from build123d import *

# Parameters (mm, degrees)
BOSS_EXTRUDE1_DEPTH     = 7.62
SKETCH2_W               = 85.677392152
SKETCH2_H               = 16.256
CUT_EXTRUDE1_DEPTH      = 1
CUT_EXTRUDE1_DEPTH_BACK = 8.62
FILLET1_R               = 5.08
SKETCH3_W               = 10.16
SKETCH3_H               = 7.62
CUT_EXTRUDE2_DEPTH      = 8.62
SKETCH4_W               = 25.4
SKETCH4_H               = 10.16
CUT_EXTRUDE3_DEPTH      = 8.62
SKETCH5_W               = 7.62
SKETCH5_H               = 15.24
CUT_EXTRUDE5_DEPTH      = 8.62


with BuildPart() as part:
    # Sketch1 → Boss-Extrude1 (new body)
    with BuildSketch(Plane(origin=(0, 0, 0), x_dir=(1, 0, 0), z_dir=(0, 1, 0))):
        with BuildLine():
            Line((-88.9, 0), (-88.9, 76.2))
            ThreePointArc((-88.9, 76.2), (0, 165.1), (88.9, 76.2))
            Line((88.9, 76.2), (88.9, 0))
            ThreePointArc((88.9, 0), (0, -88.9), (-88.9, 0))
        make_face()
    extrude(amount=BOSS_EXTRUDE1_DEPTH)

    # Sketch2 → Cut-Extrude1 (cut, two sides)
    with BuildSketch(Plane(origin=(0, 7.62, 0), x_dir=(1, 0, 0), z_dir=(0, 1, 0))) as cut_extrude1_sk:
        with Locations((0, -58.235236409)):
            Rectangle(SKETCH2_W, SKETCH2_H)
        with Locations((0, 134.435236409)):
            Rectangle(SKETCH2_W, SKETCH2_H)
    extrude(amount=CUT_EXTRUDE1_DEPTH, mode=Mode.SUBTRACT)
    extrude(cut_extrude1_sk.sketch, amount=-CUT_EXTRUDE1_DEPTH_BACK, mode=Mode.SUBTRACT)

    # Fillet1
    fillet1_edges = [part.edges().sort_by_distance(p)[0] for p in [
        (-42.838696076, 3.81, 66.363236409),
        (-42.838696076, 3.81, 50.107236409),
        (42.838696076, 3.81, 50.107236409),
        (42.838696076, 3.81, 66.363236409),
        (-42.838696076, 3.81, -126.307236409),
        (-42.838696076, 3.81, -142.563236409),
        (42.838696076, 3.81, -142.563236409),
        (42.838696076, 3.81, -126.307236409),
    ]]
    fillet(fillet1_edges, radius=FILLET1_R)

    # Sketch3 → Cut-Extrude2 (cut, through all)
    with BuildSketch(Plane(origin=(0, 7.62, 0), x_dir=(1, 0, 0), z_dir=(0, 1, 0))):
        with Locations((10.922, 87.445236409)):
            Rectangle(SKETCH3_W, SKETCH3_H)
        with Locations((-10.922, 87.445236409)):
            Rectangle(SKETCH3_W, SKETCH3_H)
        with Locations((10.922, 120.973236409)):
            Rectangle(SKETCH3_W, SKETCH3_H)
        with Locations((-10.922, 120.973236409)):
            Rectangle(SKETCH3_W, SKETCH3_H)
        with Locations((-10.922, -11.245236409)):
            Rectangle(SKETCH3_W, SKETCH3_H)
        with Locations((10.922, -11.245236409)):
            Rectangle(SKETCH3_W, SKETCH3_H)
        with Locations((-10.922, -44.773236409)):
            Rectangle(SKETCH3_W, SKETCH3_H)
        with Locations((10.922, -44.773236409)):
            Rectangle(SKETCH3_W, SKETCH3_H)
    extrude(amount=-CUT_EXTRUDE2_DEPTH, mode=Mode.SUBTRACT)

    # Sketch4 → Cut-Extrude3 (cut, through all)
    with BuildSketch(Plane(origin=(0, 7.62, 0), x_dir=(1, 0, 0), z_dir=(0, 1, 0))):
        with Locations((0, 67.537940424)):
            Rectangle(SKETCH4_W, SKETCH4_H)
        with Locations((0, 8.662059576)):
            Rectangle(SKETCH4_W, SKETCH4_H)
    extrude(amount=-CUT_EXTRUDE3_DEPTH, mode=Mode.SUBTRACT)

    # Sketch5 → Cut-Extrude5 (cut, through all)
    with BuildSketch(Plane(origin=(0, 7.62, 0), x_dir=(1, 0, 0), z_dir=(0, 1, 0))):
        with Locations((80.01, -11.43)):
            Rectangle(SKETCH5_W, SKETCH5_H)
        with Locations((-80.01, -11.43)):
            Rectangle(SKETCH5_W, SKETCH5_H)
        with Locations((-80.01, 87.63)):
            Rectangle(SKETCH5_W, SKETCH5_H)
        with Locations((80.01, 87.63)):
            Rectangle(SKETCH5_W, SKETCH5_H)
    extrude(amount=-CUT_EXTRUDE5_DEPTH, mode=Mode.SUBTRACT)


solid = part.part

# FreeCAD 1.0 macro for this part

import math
import FreeCAD as App
import Part
import Sketcher
from FreeCAD import Vector
Q = App.Units.Quantity


def edges_at(feature, points):
    """Names of the edges that pass closest to the given points."""
    edges = feature.Shape.Edges
    near = lambda p: min(range(len(edges)), key=lambda i: edges[i].distToShape(Part.Vertex(*p))[0])
    return sorted({f"Edge{near(p) + 1}" for p in points})

doc = App.newDocument("Part")
body = doc.addObject("PartDesign::Body", "Body")

sketch1 = body.newObject("Sketcher::SketchObject", "Sketch")
sketch1.AttachmentSupport = (doc.getObject("XZ_Plane"), [""])
sketch1.MapMode = "FlatFace"
sketch1.addGeometry([
    Part.LineSegment(Vector(-89, -76, 0), Vector(-89, 0, 0)),
    Part.ArcOfCircle(Part.Circle(Vector(0, 0, 0), Vector(0, 0, 1), 89), math.radians(0), math.radians(180)),
    Part.LineSegment(Vector(89, 0, 0), Vector(89, -76, 0)),
    Part.ArcOfCircle(Part.Circle(Vector(0, -76, 0), Vector(0, 0, 1), 89), math.radians(180), math.radians(360)),
], False)
sketch1.addConstraint([
    Sketcher.Constraint("Tangent", 0, 2, 1, 2),
    Sketcher.Constraint("Tangent", 1, 1, 2, 1),
    Sketcher.Constraint("Tangent", 2, 2, 3, 2),
    Sketcher.Constraint("Tangent", 3, 1, 0, 1),
    Sketcher.Constraint("Vertical", 0),
    Sketcher.Constraint("Vertical", 2),
    Sketcher.Constraint("Coincident", 1, 3, -1, 1),
    Sketcher.Constraint("Radius", 1, Q("3.5 in")),
    Sketcher.Constraint("DistanceY", 0, 1, 0, 2, Q("3 in")),
])
pad1 = body.newObject("PartDesign::Pad", "Pad")
pad1.Profile = sketch1
pad1.Length = Q("0.3 in")
pad1.Reversed = True

sketch2 = body.newObject("Sketcher::SketchObject", "Sketch001")
sketch2.AttachmentSupport = (doc.getObject("XZ_Plane"), [""])
sketch2.MapMode = "FlatFace"
sketch2.AttachmentOffset = App.Placement(Vector(0, 0, -0.3 * 25.4), App.Rotation())
sketch2.addGeometry([
    Part.LineSegment(Vector(-43, 50, 0), Vector(-43, 66, 0)),
    Part.LineSegment(Vector(-43, 66, 0), Vector(43, 66, 0)),
    Part.LineSegment(Vector(43, 66, 0), Vector(43, 50, 0)),
    Part.LineSegment(Vector(43, 50, 0), Vector(-43, 50, 0)),
    Part.LineSegment(Vector(-43, -143, 0), Vector(-43, -126, 0)),
    Part.LineSegment(Vector(-43, -126, 0), Vector(43, -126, 0)),
    Part.LineSegment(Vector(43, -126, 0), Vector(43, -143, 0)),
    Part.LineSegment(Vector(43, -143, 0), Vector(-43, -143, 0)),
], False)
sketch2.addConstraint([
    Sketcher.Constraint("Coincident", 0, 2, 1, 1),
    Sketcher.Constraint("Coincident", 1, 2, 2, 1),
    Sketcher.Constraint("Coincident", 2, 2, 3, 1),
    Sketcher.Constraint("Coincident", 3, 2, 0, 1),
    Sketcher.Constraint("Coincident", 4, 2, 5, 1),
    Sketcher.Constraint("Coincident", 5, 2, 6, 1),
    Sketcher.Constraint("Coincident", 6, 2, 7, 1),
    Sketcher.Constraint("Coincident", 7, 2, 4, 1),
    Sketcher.Constraint("Vertical", 0),
    Sketcher.Constraint("Horizontal", 1),
    Sketcher.Constraint("Vertical", 2),
    Sketcher.Constraint("Horizontal", 3),
    Sketcher.Constraint("Vertical", 4),
    Sketcher.Constraint("Horizontal", 5),
    Sketcher.Constraint("Vertical", 6),
    Sketcher.Constraint("Horizontal", 7),
    Sketcher.Constraint("Vertical", 3, 2, 4, 2),
    Sketcher.Constraint("Vertical", 2, 2, 5, 2),
    Sketcher.Constraint("Equal", 2, 4),
    Sketcher.Constraint("DistanceY", 0, 1, 0, 2, Q("0.64 in")),
    Sketcher.Constraint("DistanceX", 1, 1, 1, 2, Q("85.677392 mm")),
    Sketcher.Constraint("DistanceX", 0, 2, -1, 1, Q("42.838696 mm")),
    Sketcher.Constraint("DistanceY", -1, 1, 0, 2, Q("66.363236 mm")),
    Sketcher.Constraint("DistanceY", 4, 2, -1, 1, Q("126.307236 mm")),
])
pocket1 = body.newObject("PartDesign::Pocket", "Pocket")
pocket1.Profile = sketch2
pocket1.Type = "ThroughAll"
pocket1.Midplane = True
doc.recompute()

fillet = body.newObject("PartDesign::Fillet", "Fillet")
fillet.Base = (pocket1, edges_at(pocket1, [
    (-42.839, 3.81, 66.363),
    (-42.839, 3.81, 50.107),
    (42.839, 3.81, 50.107),
    (42.839, 3.81, 66.363),
    (-42.839, 3.81, -126.307),
    (-42.839, 3.81, -142.563),
    (42.839, 3.81, -142.563),
    (42.839, 3.81, -126.307),
]))
fillet.Radius = Q("0.2 in")

sketch3 = body.newObject("Sketcher::SketchObject", "Sketch002")
sketch3.AttachmentSupport = (doc.getObject("XZ_Plane"), [""])
sketch3.MapMode = "FlatFace"
sketch3.AttachmentOffset = App.Placement(Vector(0, 0, -0.3 * 25.4), App.Rotation())
sketch3.addGeometry([
    Part.LineSegment(Vector(6, -91, 0), Vector(6, -84, 0)),
    Part.LineSegment(Vector(6, -84, 0), Vector(16, -84, 0)),
    Part.LineSegment(Vector(16, -84, 0), Vector(16, -91, 0)),
    Part.LineSegment(Vector(16, -91, 0), Vector(6, -91, 0)),
    Part.LineSegment(Vector(-16, -91, 0), Vector(-16, -84, 0)),
    Part.LineSegment(Vector(-16, -84, 0), Vector(-6, -84, 0)),
    Part.LineSegment(Vector(-6, -84, 0), Vector(-6, -91, 0)),
    Part.LineSegment(Vector(-6, -91, 0), Vector(-16, -91, 0)),
    Part.LineSegment(Vector(6, -125, 0), Vector(6, -117, 0)),
    Part.LineSegment(Vector(6, -117, 0), Vector(16, -117, 0)),
    Part.LineSegment(Vector(16, -117, 0), Vector(16, -125, 0)),
    Part.LineSegment(Vector(16, -125, 0), Vector(6, -125, 0)),
    Part.LineSegment(Vector(-16, -125, 0), Vector(-16, -117, 0)),
    Part.LineSegment(Vector(-16, -117, 0), Vector(-6, -117, 0)),
    Part.LineSegment(Vector(-6, -117, 0), Vector(-6, -125, 0)),
    Part.LineSegment(Vector(-6, -125, 0), Vector(-16, -125, 0)),
    Part.LineSegment(Vector(-16, 7, 0), Vector(-16, 15, 0)),
    Part.LineSegment(Vector(-16, 15, 0), Vector(-6, 15, 0)),
    Part.LineSegment(Vector(-6, 15, 0), Vector(-6, 7, 0)),
    Part.LineSegment(Vector(-6, 7, 0), Vector(-16, 7, 0)),
    Part.LineSegment(Vector(6, 7, 0), Vector(6, 15, 0)),
    Part.LineSegment(Vector(6, 15, 0), Vector(16, 15, 0)),
    Part.LineSegment(Vector(16, 15, 0), Vector(16, 7, 0)),
    Part.LineSegment(Vector(16, 7, 0), Vector(6, 7, 0)),
    Part.LineSegment(Vector(-16, 41, 0), Vector(-16, 49, 0)),
    Part.LineSegment(Vector(-16, 49, 0), Vector(-6, 49, 0)),
    Part.LineSegment(Vector(-6, 49, 0), Vector(-6, 41, 0)),
    Part.LineSegment(Vector(-6, 41, 0), Vector(-16, 41, 0)),
    Part.LineSegment(Vector(6, 41, 0), Vector(6, 49, 0)),
    Part.LineSegment(Vector(6, 49, 0), Vector(16, 49, 0)),
    Part.LineSegment(Vector(16, 49, 0), Vector(16, 41, 0)),
    Part.LineSegment(Vector(16, 41, 0), Vector(6, 41, 0)),
], False)
sketch3.addConstraint([
    Sketcher.Constraint("Coincident", 0, 2, 1, 1),
    Sketcher.Constraint("Coincident", 1, 2, 2, 1),
    Sketcher.Constraint("Coincident", 2, 2, 3, 1),
    Sketcher.Constraint("Coincident", 3, 2, 0, 1),
    Sketcher.Constraint("Coincident", 4, 2, 5, 1),
    Sketcher.Constraint("Coincident", 5, 2, 6, 1),
    Sketcher.Constraint("Coincident", 6, 2, 7, 1),
    Sketcher.Constraint("Coincident", 7, 2, 4, 1),
    Sketcher.Constraint("Coincident", 8, 2, 9, 1),
    Sketcher.Constraint("Coincident", 9, 2, 10, 1),
    Sketcher.Constraint("Coincident", 10, 2, 11, 1),
    Sketcher.Constraint("Coincident", 11, 2, 8, 1),
    Sketcher.Constraint("Coincident", 12, 2, 13, 1),
    Sketcher.Constraint("Coincident", 13, 2, 14, 1),
    Sketcher.Constraint("Coincident", 14, 2, 15, 1),
    Sketcher.Constraint("Coincident", 15, 2, 12, 1),
    Sketcher.Constraint("Coincident", 16, 2, 17, 1),
    Sketcher.Constraint("Coincident", 17, 2, 18, 1),
    Sketcher.Constraint("Coincident", 18, 2, 19, 1),
    Sketcher.Constraint("Coincident", 19, 2, 16, 1),
    Sketcher.Constraint("Coincident", 20, 2, 21, 1),
    Sketcher.Constraint("Coincident", 21, 2, 22, 1),
    Sketcher.Constraint("Coincident", 22, 2, 23, 1),
    Sketcher.Constraint("Coincident", 23, 2, 20, 1),
    Sketcher.Constraint("Coincident", 24, 2, 25, 1),
    Sketcher.Constraint("Coincident", 25, 2, 26, 1),
    Sketcher.Constraint("Coincident", 26, 2, 27, 1),
    Sketcher.Constraint("Coincident", 27, 2, 24, 1),
    Sketcher.Constraint("Coincident", 28, 2, 29, 1),
    Sketcher.Constraint("Coincident", 29, 2, 30, 1),
    Sketcher.Constraint("Coincident", 30, 2, 31, 1),
    Sketcher.Constraint("Coincident", 31, 2, 28, 1),
    Sketcher.Constraint("Vertical", 0),
    Sketcher.Constraint("Horizontal", 1),
    Sketcher.Constraint("Vertical", 2),
    Sketcher.Constraint("Horizontal", 3),
    Sketcher.Constraint("Vertical", 4),
    Sketcher.Constraint("Horizontal", 5),
    Sketcher.Constraint("Vertical", 6),
    Sketcher.Constraint("Horizontal", 7),
    Sketcher.Constraint("Vertical", 8),
    Sketcher.Constraint("Horizontal", 9),
    Sketcher.Constraint("Vertical", 10),
    Sketcher.Constraint("Horizontal", 11),
    Sketcher.Constraint("Vertical", 12),
    Sketcher.Constraint("Horizontal", 13),
    Sketcher.Constraint("Vertical", 14),
    Sketcher.Constraint("Horizontal", 15),
    Sketcher.Constraint("Vertical", 16),
    Sketcher.Constraint("Horizontal", 17),
    Sketcher.Constraint("Vertical", 18),
    Sketcher.Constraint("Horizontal", 19),
    Sketcher.Constraint("Vertical", 20),
    Sketcher.Constraint("Horizontal", 21),
    Sketcher.Constraint("Vertical", 22),
    Sketcher.Constraint("Horizontal", 23),
    Sketcher.Constraint("Vertical", 24),
    Sketcher.Constraint("Horizontal", 25),
    Sketcher.Constraint("Vertical", 26),
    Sketcher.Constraint("Horizontal", 27),
    Sketcher.Constraint("Vertical", 28),
    Sketcher.Constraint("Horizontal", 29),
    Sketcher.Constraint("Vertical", 30),
    Sketcher.Constraint("Horizontal", 31),
    Sketcher.Constraint("Symmetric", 1, 2, 4, 2, -2),
    Sketcher.Constraint("Symmetric", 3, 2, 6, 2, -2),
    Sketcher.Constraint("Symmetric", 9, 2, 12, 2, -2),
    Sketcher.Constraint("Symmetric", 11, 2, 14, 2, -2),
    Sketcher.Constraint("Symmetric", 17, 2, 20, 2, -2),
    Sketcher.Constraint("Symmetric", 19, 2, 22, 2, -2),
    Sketcher.Constraint("Symmetric", 25, 2, 28, 2, -2),
    Sketcher.Constraint("Symmetric", 27, 2, 30, 2, -2),
    Sketcher.Constraint("Vertical", 3, 2, 8, 2),
    Sketcher.Constraint("Vertical", 2, 2, 9, 2),
    Sketcher.Constraint("Vertical", 15, 2, 16, 2),
    Sketcher.Constraint("Vertical", 14, 2, 17, 2),
    Sketcher.Constraint("Vertical", 19, 2, 24, 2),
    Sketcher.Constraint("Vertical", 18, 2, 25, 2),
    Sketcher.Constraint("Equal", 6, 8),
    Sketcher.Constraint("Equal", 14, 16),
    Sketcher.Constraint("Equal", 22, 24),
    Sketcher.Constraint("DistanceX", 1, 1, 1, 2, Q("0.4 in")),
    Sketcher.Constraint("DistanceY", 0, 1, 0, 2, Q("0.3 in")),
    Sketcher.Constraint("DistanceX", -1, 1, 0, 2, Q("0.23 in")),
    Sketcher.Constraint("DistanceY", 8, 2, 3, 2, Q("1.02 in")),
    Sketcher.Constraint("DistanceY", 16, 2, 24, 2, Q("1.32 in")),
    Sketcher.Constraint("DistanceY", 0, 2, -1, 1, Q("83.635236 mm")),
    Sketcher.Constraint("DistanceY", -1, 1, 16, 2, Q("15.055236 mm")),
])
pocket2 = body.newObject("PartDesign::Pocket", "Pocket001")
pocket2.Profile = sketch3
pocket2.Type = "ThroughAll"
pocket2.Reversed = True

sketch4 = body.newObject("Sketcher::SketchObject", "Sketch003")
sketch4.AttachmentSupport = (doc.getObject("XZ_Plane"), [""])
sketch4.MapMode = "FlatFace"
sketch4.AttachmentOffset = App.Placement(Vector(0, 0, -0.3 * 25.4), App.Rotation())
sketch4.addGeometry([
    Part.LineSegment(Vector(-13, -73, 0), Vector(-13, -62, 0)),
    Part.LineSegment(Vector(-13, -62, 0), Vector(13, -62, 0)),
    Part.LineSegment(Vector(13, -62, 0), Vector(13, -73, 0)),
    Part.LineSegment(Vector(13, -73, 0), Vector(-13, -73, 0)),
    Part.LineSegment(Vector(-13, -14, 0), Vector(-13, -4, 0)),
    Part.LineSegment(Vector(-13, -4, 0), Vector(13, -4, 0)),
    Part.LineSegment(Vector(13, -4, 0), Vector(13, -14, 0)),
    Part.LineSegment(Vector(13, -14, 0), Vector(-13, -14, 0)),
], False)
sketch4.addConstraint([
    Sketcher.Constraint("Coincident", 0, 2, 1, 1),
    Sketcher.Constraint("Coincident", 1, 2, 2, 1),
    Sketcher.Constraint("Coincident", 2, 2, 3, 1),
    Sketcher.Constraint("Coincident", 3, 2, 0, 1),
    Sketcher.Constraint("Coincident", 4, 2, 5, 1),
    Sketcher.Constraint("Coincident", 5, 2, 6, 1),
    Sketcher.Constraint("Coincident", 6, 2, 7, 1),
    Sketcher.Constraint("Coincident", 7, 2, 4, 1),
    Sketcher.Constraint("Vertical", 0),
    Sketcher.Constraint("Horizontal", 1),
    Sketcher.Constraint("Vertical", 2),
    Sketcher.Constraint("Horizontal", 3),
    Sketcher.Constraint("Vertical", 4),
    Sketcher.Constraint("Horizontal", 5),
    Sketcher.Constraint("Vertical", 6),
    Sketcher.Constraint("Horizontal", 7),
    Sketcher.Constraint("Vertical", 3, 2, 4, 2),
    Sketcher.Constraint("Vertical", 2, 2, 5, 2),
    Sketcher.Constraint("Equal", 2, 4),
    Sketcher.Constraint("DistanceX", 1, 1, 1, 2, Q("1 in")),
    Sketcher.Constraint("DistanceY", 0, 1, 0, 2, Q("0.4 in")),
    Sketcher.Constraint("DistanceX", 0, 2, -1, 1, Q("0.5 in")),
    Sketcher.Constraint("DistanceY", 0, 2, -1, 1, Q("62.45794 mm")),
    Sketcher.Constraint("DistanceY", 4, 2, -1, 1, Q("3.58206 mm")),
])
pocket3 = body.newObject("PartDesign::Pocket", "Pocket002")
pocket3.Profile = sketch4
pocket3.Type = "ThroughAll"
pocket3.Reversed = True

sketch5 = body.newObject("Sketcher::SketchObject", "Sketch004")
sketch5.AttachmentSupport = (doc.getObject("XZ_Plane"), [""])
sketch5.MapMode = "FlatFace"
sketch5.AttachmentOffset = App.Placement(Vector(0, 0, -0.3 * 25.4), App.Rotation())
sketch5.addGeometry([
    Part.LineSegment(Vector(76, 4, 0), Vector(76, 19, 0)),
    Part.LineSegment(Vector(76, 19, 0), Vector(84, 19, 0)),
    Part.LineSegment(Vector(84, 19, 0), Vector(84, 4, 0)),
    Part.LineSegment(Vector(84, 4, 0), Vector(76, 4, 0)),
    Part.LineSegment(Vector(-84, 4, 0), Vector(-84, 19, 0)),
    Part.LineSegment(Vector(-84, 19, 0), Vector(-76, 19, 0)),
    Part.LineSegment(Vector(-76, 19, 0), Vector(-76, 4, 0)),
    Part.LineSegment(Vector(-76, 4, 0), Vector(-84, 4, 0)),
    Part.LineSegment(Vector(-84, -95, 0), Vector(-84, -80, 0)),
    Part.LineSegment(Vector(-84, -80, 0), Vector(-76, -80, 0)),
    Part.LineSegment(Vector(-76, -80, 0), Vector(-76, -95, 0)),
    Part.LineSegment(Vector(-76, -95, 0), Vector(-84, -95, 0)),
    Part.LineSegment(Vector(76, -95, 0), Vector(76, -80, 0)),
    Part.LineSegment(Vector(76, -80, 0), Vector(84, -80, 0)),
    Part.LineSegment(Vector(84, -80, 0), Vector(84, -95, 0)),
    Part.LineSegment(Vector(84, -95, 0), Vector(76, -95, 0)),
], False)
sketch5.addConstraint([
    Sketcher.Constraint("Coincident", 0, 2, 1, 1),
    Sketcher.Constraint("Coincident", 1, 2, 2, 1),
    Sketcher.Constraint("Coincident", 2, 2, 3, 1),
    Sketcher.Constraint("Coincident", 3, 2, 0, 1),
    Sketcher.Constraint("Coincident", 4, 2, 5, 1),
    Sketcher.Constraint("Coincident", 5, 2, 6, 1),
    Sketcher.Constraint("Coincident", 6, 2, 7, 1),
    Sketcher.Constraint("Coincident", 7, 2, 4, 1),
    Sketcher.Constraint("Coincident", 8, 2, 9, 1),
    Sketcher.Constraint("Coincident", 9, 2, 10, 1),
    Sketcher.Constraint("Coincident", 10, 2, 11, 1),
    Sketcher.Constraint("Coincident", 11, 2, 8, 1),
    Sketcher.Constraint("Coincident", 12, 2, 13, 1),
    Sketcher.Constraint("Coincident", 13, 2, 14, 1),
    Sketcher.Constraint("Coincident", 14, 2, 15, 1),
    Sketcher.Constraint("Coincident", 15, 2, 12, 1),
    Sketcher.Constraint("Vertical", 0),
    Sketcher.Constraint("Horizontal", 1),
    Sketcher.Constraint("Vertical", 2),
    Sketcher.Constraint("Horizontal", 3),
    Sketcher.Constraint("Vertical", 4),
    Sketcher.Constraint("Horizontal", 5),
    Sketcher.Constraint("Vertical", 6),
    Sketcher.Constraint("Horizontal", 7),
    Sketcher.Constraint("Vertical", 8),
    Sketcher.Constraint("Horizontal", 9),
    Sketcher.Constraint("Vertical", 10),
    Sketcher.Constraint("Horizontal", 11),
    Sketcher.Constraint("Vertical", 12),
    Sketcher.Constraint("Horizontal", 13),
    Sketcher.Constraint("Vertical", 14),
    Sketcher.Constraint("Horizontal", 15),
    Sketcher.Constraint("Symmetric", 1, 2, 4, 2, -2),
    Sketcher.Constraint("Symmetric", 3, 2, 6, 2, -2),
    Sketcher.Constraint("Symmetric", 9, 2, 12, 2, -2),
    Sketcher.Constraint("Symmetric", 11, 2, 14, 2, -2),
    Sketcher.Constraint("Vertical", 7, 2, 8, 2),
    Sketcher.Constraint("Vertical", 6, 2, 9, 2),
    Sketcher.Constraint("Equal", 6, 8),
    Sketcher.Constraint("DistanceX", 1, 1, 1, 2, Q("0.3 in")),
    Sketcher.Constraint("DistanceY", 0, 1, 0, 2, Q("0.6 in")),
    Sketcher.Constraint("DistanceX", -1, 1, 0, 2, Q("3 in")),
    Sketcher.Constraint("DistanceY", 8, 2, 7, 2, Q("3.3 in")),
    Sketcher.Constraint("DistanceY", -1, 1, 0, 2, Q("0.75 in")),
])
pocket4 = body.newObject("PartDesign::Pocket", "Pocket003")
pocket4.Profile = sketch5
pocket4.Type = "ThroughAll"
pocket4.Reversed = True

doc.recompute()
